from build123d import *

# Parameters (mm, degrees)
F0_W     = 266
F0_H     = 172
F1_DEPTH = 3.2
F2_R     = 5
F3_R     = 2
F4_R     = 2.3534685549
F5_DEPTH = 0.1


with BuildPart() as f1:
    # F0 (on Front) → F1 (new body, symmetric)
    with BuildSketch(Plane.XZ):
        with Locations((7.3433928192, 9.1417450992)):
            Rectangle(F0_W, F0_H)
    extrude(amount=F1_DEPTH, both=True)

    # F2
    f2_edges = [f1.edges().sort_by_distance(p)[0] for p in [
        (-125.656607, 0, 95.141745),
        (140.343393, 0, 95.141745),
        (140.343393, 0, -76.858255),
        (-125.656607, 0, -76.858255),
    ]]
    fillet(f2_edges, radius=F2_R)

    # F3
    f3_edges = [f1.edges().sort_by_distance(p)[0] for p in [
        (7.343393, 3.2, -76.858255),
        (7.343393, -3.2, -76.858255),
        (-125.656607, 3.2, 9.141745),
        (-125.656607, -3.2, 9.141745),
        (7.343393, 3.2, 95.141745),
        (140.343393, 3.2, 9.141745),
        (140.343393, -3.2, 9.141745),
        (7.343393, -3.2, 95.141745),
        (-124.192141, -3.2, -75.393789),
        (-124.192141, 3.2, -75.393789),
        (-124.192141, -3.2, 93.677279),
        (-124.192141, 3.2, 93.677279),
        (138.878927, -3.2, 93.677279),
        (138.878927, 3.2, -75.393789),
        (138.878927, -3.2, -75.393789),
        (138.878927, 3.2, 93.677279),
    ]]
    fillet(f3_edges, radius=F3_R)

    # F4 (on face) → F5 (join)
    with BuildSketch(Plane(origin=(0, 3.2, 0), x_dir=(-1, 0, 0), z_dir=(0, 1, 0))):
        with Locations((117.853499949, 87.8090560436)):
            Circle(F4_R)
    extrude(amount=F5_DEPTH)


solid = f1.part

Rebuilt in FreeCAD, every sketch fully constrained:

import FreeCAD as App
import Part
import Sketcher

V = App.Vector


def edges_at(feature, points):
    """Names of the edges that pass closest to the given points."""
    edges = feature.Shape.Edges
    near = lambda p: min(range(len(edges)), key=lambda i: edges[i].distToShape(Part.Vertex(*p))[0])
    return sorted({f"Edge{near(p) + 1}" for p in points})


def add_polygon(sketch, points):
    """Adds a closed chain of lines whose ends are joined by coincident constraints."""
    first, n = sketch.GeometryCount, len(points)
    for a, b in zip(points, points[1:] + points[:1]):
        sketch.addGeometry(Part.LineSegment(App.Vector(*a, 0), App.Vector(*b, 0)), False)
    for i in range(n):
        sketch.addConstraint(Sketcher.Constraint("Coincident", first + i, 2, first + (i + 1) % n, 1))

doc = App.newDocument("Part")
params = doc.addObject("Spreadsheet::Sheet", "Params")
for row, (alias, value) in enumerate([
    ("sketch1_width", "266 mm"),
    ("sketch1_height", "172 mm"),
    ("pad1_length", "6.4 mm"),
    ("fillet_radius", "5 mm"),
    ("fillet2_radius", "2 mm"),
    ("pad2_length", "0.1 mm"),
], start=1):
    params.set(f"A{row}", alias)
    params.set(f"B{row}", "=" + value)
    params.setAlias(f"B{row}", alias)

body = doc.addObject("PartDesign::Body", "Body")

sketch1 = doc.addObject("Sketcher::SketchObject", "Sketch")
body.addObject(sketch1)
sketch1.AttachmentSupport = (doc.XZ_Plane, [""])
sketch1.MapMode = "FlatFace"
add_polygon(sketch1, [(-126, 95), (-126, -77), (140, -77), (140, 95)])
sketch1.addConstraint(Sketcher.Constraint("Vertical", 0))
sketch1.addConstraint(Sketcher.Constraint("Horizontal", 1))
sketch1.addConstraint(Sketcher.Constraint("Vertical", 2))
sketch1.addConstraint(Sketcher.Constraint("Horizontal", 3))
sketch1.addConstraint(Sketcher.Constraint("DistanceX", 1, 1, 1, 2, 266.0))
sketch1.addConstraint(Sketcher.Constraint("DistanceY", 0, 2, 0, 1, 172.0))
sketch1.addConstraint(Sketcher.Constraint("DistanceX", 0, 2, -1, 1, 125.656607))
sketch1.addConstraint(Sketcher.Constraint("DistanceY", 0, 2, -1, 1, 76.858255))
sketch1.setExpression("Constraints[8]", "Params.sketch1_width")
sketch1.setExpression("Constraints[9]", "Params.sketch1_height")
pad1 = doc.addObject("PartDesign::Pad", "Pad")
body.addObject(pad1)
pad1.Profile = sketch1
pad1.setExpression("Length", "Params.pad1_length")
pad1.Midplane = True
doc.recompute()

fillet = doc.addObject("PartDesign::Fillet", "Fillet")
body.addObject(fillet)
fillet.Base = (pad1, edges_at(pad1, [
    (-125.657, 0, 95.142),
    (140.343, 0, 95.142),
    (140.343, 0, -76.858),
    (-125.657, 0, -76.858),
]))
fillet.setExpression("Radius", "Params.fillet_radius")
doc.recompute()

fillet2 = doc.addObject("PartDesign::Fillet", "Fillet001")
body.addObject(fillet2)
fillet2.Base = (fillet, edges_at(fillet, [
    (7.343, 3.2, -76.858),
    (7.343, -3.2, -76.858),
    (-125.657, 3.2, 9.142),
    (-125.657, -3.2, 9.142),
    (7.343, 3.2, 95.142),
    (140.343, 3.2, 9.142),
    (140.343, -3.2, 9.142),
    (7.343, -3.2, 95.142),
    (-124.192, -3.2, -75.394),
    (-124.192, 3.2, -75.394),
    (-124.192, -3.2, 93.677),
    (-124.192, 3.2, 93.677),
    (138.879, -3.2, 93.677),
    (138.879, 3.2, -75.394),
    (138.879, -3.2, -75.394),
    (138.879, 3.2, 93.677),
]))
fillet2.setExpression("Radius", "Params.fillet2_radius")

sketch2 = doc.addObject("Sketcher::SketchObject", "Sketch001")
body.addObject(sketch2)
sketch2.AttachmentSupport = (doc.XZ_Plane, [""])
sketch2.MapMode = "FlatFace"
sketch2.AttachmentOffset = App.Placement(V(0, 0, -3.2), App.Rotation())
sketch2.addGeometry(Part.Circle(V(-117.9, 87.8, 0), V(0, 0, 1), 2.4), False)
sketch2.addConstraint(Sketcher.Constraint("Diameter", 0, 4.706937))
sketch2.addConstraint(Sketcher.Constraint("DistanceX", 0, 3, -1, 1, 117.8535))
sketch2.addConstraint(Sketcher.Constraint("DistanceY", -1, 1, 0, 3, 87.809056))
pad2 = doc.addObject("PartDesign::Pad", "Pad001")
body.addObject(pad2)
pad2.Profile = sketch2
pad2.setExpression("Length", "Params.pad2_length")
pad2.Reversed = True

doc.recompute()
